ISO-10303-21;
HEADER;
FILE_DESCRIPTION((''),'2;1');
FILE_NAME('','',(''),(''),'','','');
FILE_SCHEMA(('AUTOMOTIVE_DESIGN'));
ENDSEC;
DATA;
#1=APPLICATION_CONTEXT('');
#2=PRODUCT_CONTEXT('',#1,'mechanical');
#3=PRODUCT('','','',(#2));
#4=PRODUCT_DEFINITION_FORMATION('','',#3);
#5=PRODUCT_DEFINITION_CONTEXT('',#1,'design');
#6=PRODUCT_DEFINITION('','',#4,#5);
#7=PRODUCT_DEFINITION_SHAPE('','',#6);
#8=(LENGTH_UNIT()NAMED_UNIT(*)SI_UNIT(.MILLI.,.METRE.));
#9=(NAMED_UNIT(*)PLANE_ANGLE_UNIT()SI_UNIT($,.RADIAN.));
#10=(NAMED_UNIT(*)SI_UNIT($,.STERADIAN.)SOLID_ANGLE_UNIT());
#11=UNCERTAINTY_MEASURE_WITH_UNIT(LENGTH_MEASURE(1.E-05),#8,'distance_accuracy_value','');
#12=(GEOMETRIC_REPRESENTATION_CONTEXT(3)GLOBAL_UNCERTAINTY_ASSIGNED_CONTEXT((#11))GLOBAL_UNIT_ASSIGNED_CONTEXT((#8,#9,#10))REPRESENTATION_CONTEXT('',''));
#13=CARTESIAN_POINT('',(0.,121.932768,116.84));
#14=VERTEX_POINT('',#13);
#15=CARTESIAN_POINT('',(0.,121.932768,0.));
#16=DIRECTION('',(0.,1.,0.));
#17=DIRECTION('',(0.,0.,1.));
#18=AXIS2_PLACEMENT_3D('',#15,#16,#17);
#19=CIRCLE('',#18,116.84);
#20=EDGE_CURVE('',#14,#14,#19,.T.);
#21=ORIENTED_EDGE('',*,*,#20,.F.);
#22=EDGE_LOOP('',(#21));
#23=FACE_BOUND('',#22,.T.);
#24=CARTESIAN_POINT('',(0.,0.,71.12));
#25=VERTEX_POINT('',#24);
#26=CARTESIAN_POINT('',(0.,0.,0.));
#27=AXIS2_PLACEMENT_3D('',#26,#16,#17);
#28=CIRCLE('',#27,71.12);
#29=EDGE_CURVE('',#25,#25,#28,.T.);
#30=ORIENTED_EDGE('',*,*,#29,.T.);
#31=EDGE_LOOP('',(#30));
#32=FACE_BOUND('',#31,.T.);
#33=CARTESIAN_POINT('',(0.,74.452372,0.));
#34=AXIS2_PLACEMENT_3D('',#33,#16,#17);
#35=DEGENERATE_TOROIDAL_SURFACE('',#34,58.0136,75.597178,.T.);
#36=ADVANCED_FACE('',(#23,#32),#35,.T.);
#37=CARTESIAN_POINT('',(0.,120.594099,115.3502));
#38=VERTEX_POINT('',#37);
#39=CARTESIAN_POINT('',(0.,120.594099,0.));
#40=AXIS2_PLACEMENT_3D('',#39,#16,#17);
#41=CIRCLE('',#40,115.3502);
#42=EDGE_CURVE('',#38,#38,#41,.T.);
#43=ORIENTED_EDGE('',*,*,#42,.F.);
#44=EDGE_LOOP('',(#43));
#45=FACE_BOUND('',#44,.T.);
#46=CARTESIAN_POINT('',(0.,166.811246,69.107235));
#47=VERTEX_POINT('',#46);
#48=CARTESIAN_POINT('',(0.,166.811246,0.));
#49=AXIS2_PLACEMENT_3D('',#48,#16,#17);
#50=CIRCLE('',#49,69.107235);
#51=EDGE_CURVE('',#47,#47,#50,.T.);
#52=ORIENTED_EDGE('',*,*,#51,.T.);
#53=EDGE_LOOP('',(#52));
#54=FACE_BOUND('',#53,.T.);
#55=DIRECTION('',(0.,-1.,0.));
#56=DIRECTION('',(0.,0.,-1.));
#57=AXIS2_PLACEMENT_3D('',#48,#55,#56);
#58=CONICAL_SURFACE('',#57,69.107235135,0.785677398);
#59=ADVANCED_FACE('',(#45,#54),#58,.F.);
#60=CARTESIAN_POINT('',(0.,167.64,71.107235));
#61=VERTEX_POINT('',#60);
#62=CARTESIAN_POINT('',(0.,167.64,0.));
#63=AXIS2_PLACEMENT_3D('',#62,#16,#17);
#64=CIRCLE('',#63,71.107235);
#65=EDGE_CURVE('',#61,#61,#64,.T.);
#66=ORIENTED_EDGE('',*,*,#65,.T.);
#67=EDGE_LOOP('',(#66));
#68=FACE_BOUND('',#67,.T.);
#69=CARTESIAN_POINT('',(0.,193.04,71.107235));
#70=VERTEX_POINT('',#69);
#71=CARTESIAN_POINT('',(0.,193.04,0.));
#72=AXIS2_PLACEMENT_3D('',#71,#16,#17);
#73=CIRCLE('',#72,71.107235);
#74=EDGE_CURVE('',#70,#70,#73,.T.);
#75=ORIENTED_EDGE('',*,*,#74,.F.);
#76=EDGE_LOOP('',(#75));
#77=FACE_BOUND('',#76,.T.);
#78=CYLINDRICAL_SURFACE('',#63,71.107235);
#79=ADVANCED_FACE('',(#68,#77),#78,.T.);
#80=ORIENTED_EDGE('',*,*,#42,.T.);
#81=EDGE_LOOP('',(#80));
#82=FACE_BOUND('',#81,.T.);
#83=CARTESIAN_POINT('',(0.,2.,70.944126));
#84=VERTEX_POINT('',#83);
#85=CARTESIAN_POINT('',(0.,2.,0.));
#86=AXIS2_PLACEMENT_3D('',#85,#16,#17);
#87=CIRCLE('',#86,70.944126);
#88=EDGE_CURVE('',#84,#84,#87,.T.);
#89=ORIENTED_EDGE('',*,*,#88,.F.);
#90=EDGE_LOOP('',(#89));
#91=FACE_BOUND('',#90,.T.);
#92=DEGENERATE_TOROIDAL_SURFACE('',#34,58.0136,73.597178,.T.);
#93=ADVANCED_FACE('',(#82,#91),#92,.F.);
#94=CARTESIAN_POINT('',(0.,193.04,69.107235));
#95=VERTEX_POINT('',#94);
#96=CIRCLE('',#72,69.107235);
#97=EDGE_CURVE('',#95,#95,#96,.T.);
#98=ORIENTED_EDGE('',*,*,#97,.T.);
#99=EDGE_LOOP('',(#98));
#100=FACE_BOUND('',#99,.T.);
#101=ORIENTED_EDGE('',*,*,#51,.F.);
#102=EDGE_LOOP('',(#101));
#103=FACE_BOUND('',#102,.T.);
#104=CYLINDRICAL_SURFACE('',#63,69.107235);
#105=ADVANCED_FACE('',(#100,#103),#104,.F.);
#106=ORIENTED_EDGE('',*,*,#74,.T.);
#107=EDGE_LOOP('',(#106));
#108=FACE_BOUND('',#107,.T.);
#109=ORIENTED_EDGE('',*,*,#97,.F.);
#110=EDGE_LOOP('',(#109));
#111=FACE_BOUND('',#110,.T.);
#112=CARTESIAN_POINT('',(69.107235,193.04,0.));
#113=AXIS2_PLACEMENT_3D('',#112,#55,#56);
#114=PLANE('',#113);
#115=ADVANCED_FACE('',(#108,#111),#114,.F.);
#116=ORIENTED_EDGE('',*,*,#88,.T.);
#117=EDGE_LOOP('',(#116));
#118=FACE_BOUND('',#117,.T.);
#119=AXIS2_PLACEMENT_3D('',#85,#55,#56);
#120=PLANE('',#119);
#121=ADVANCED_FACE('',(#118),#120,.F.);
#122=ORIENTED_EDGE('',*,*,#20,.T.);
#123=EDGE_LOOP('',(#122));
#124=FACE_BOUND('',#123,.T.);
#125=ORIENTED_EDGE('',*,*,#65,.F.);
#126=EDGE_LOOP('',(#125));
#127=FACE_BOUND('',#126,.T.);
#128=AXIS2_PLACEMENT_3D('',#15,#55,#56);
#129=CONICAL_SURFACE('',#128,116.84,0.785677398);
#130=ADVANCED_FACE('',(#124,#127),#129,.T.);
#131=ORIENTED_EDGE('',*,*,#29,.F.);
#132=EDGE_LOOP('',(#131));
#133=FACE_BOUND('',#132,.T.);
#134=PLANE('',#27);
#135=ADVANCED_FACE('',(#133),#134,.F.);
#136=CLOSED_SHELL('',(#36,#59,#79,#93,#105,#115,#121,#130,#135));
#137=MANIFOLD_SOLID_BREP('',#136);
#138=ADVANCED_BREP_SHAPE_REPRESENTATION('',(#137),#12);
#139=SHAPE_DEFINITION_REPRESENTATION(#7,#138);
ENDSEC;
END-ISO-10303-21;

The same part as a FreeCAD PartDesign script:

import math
import FreeCAD as App
import Part
import Sketcher

V = App.Vector
Q = App.Units.Quantity

doc = App.newDocument("Part")
body = doc.addObject("PartDesign::Body", "Body")

# Sketch on XY plane
sketch1 = doc.addObject("Sketcher::SketchObject", "Sketch")
body.addObject(sketch1)
sketch1.AttachmentSupport = (doc.XY_Plane, [""])
sketch1.MapMode = "FlatFace"
sketch1.addGeometry(Part.LineSegment(V(0, 0, 0), V(71.12, 0, 0)), False)
sketch1.addGeometry(Part.ArcOfCircle(Part.Circle(V(58.0136, 74.452372, 0), V(0, 0, 1), 75.597178), math.radians(-80.016094), math.radians(38.907948)), False)
sketch1.addGeometry(Part.LineSegment(V(116.84, 121.932768, 0), V(71.107235, 167.64, 0)), False)
sketch1.addGeometry(Part.LineSegment(V(71.107235, 167.64, 0), V(71.107235, 193.04, 0)), False)
sketch1.addGeometry(Part.LineSegment(V(71.107235, 193.04, 0), V(69.107235, 193.04, 0)), False)
sketch1.addGeometry(Part.LineSegment(V(69.107235, 193.04, 0), V(69.107235, 166.811246, 0)), False)
sketch1.addGeometry(Part.LineSegment(V(69.107235, 166.811246, 0), V(115.3502, 120.594099, 0)), False)
sketch1.addGeometry(Part.ArcOfCircle(Part.Circle(V(58.0136, 74.452372, 0), V(0, 0, 1), 73.597178), math.radians(-79.880998), math.radians(38.825432)), False)
sketch1.addGeometry(Part.LineSegment(V(70.944126, 2, 0), V(0, 2, 0)), False)
sketch1.addGeometry(Part.LineSegment(V(0, 2, 0), V(0, 0, 0)), False)
sketch1.addConstraint(Sketcher.Constraint("Coincident", 0, 2, 1, 1))
sketch1.addConstraint(Sketcher.Constraint("Coincident", 1, 2, 2, 1))
sketch1.addConstraint(Sketcher.Constraint("Coincident", 2, 2, 3, 1))
sketch1.addConstraint(Sketcher.Constraint("Coincident", 3, 2, 4, 1))
sketch1.addConstraint(Sketcher.Constraint("Coincident", 4, 2, 5, 1))
sketch1.addConstraint(Sketcher.Constraint("Coincident", 5, 2, 6, 1))
sketch1.addConstraint(Sketcher.Constraint("Coincident", 6, 2, 7, 2))
sketch1.addConstraint(Sketcher.Constraint("Coincident", 7, 1, 8, 1))
sketch1.addConstraint(Sketcher.Constraint("Coincident", 8, 2, 9, 1))
sketch1.addConstraint(Sketcher.Constraint("Coincident", 9, 2, 0, 1))
sketch1.addConstraint(Sketcher.Constraint("Horizontal", 0))
sketch1.addConstraint(Sketcher.Constraint("Vertical", 3))
sketch1.addConstraint(Sketcher.Constraint("Horizontal", 4))
sketch1.addConstraint(Sketcher.Constraint("Vertical", 5))
sketch1.addConstraint(Sketcher.Constraint("Horizontal", 8))
sketch1.addConstraint(Sketcher.Constraint("Vertical", 9))
sketch1.addConstraint(Sketcher.Constraint("Coincident", 9, 2, -1, 1))
sketch1.addConstraint(Sketcher.Constraint("Coincident", 7, 3, 1, 3))
sketch1.addConstraint(Sketcher.Constraint("DistanceY", 3, 1, 3, 2, Q("1 in")))
sketch1.addConstraint(Sketcher.Constraint("DistanceX", 0, 1, 0, 2, Q("2.8 in")))
sketch1.addConstraint(Sketcher.Constraint("DistanceX", -1, 1, 1, 2, Q("4.6 in")))
sketch1.addConstraint(Sketcher.Constraint("DistanceY", -1, 1, 2, 2, Q("6.6 in")))
sketch1.addConstraint(Sketcher.Constraint("DistanceX", -1, 1, 1, 3, Q("2.284 in")))
sketch1.addConstraint(Sketcher.Constraint("Radius", 1, Q("75.597178 mm")))
sketch1.addConstraint(Sketcher.Constraint("Radius", 7, Q("73.597178 mm")))
sketch1.addConstraint(Sketcher.Constraint("DistanceX", 4, 2, 4, 1, Q("2 mm")))
sketch1.addConstraint(Sketcher.Constraint("DistanceY", 9, 2, 9, 1, Q("2 mm")))
sketch1.addConstraint(Sketcher.Constraint("DistanceX", -1, 1, 6, 2, Q("115.3502 mm")))
sketch1.addConstraint(Sketcher.Constraint("DistanceY", 5, 2, 5, 1, Q("26.228754 mm")))
sketch1.addConstraint(Sketcher.Constraint("Distance", 2, Q("64.657844 mm")))
revolution = doc.addObject("PartDesign::Revolution", "Revolution")
body.addObject(revolution)
revolution.Profile = sketch1
revolution.ReferenceAxis = (sketch1, ["V_Axis"])
revolution.Angle = 360

doc.recompute()
